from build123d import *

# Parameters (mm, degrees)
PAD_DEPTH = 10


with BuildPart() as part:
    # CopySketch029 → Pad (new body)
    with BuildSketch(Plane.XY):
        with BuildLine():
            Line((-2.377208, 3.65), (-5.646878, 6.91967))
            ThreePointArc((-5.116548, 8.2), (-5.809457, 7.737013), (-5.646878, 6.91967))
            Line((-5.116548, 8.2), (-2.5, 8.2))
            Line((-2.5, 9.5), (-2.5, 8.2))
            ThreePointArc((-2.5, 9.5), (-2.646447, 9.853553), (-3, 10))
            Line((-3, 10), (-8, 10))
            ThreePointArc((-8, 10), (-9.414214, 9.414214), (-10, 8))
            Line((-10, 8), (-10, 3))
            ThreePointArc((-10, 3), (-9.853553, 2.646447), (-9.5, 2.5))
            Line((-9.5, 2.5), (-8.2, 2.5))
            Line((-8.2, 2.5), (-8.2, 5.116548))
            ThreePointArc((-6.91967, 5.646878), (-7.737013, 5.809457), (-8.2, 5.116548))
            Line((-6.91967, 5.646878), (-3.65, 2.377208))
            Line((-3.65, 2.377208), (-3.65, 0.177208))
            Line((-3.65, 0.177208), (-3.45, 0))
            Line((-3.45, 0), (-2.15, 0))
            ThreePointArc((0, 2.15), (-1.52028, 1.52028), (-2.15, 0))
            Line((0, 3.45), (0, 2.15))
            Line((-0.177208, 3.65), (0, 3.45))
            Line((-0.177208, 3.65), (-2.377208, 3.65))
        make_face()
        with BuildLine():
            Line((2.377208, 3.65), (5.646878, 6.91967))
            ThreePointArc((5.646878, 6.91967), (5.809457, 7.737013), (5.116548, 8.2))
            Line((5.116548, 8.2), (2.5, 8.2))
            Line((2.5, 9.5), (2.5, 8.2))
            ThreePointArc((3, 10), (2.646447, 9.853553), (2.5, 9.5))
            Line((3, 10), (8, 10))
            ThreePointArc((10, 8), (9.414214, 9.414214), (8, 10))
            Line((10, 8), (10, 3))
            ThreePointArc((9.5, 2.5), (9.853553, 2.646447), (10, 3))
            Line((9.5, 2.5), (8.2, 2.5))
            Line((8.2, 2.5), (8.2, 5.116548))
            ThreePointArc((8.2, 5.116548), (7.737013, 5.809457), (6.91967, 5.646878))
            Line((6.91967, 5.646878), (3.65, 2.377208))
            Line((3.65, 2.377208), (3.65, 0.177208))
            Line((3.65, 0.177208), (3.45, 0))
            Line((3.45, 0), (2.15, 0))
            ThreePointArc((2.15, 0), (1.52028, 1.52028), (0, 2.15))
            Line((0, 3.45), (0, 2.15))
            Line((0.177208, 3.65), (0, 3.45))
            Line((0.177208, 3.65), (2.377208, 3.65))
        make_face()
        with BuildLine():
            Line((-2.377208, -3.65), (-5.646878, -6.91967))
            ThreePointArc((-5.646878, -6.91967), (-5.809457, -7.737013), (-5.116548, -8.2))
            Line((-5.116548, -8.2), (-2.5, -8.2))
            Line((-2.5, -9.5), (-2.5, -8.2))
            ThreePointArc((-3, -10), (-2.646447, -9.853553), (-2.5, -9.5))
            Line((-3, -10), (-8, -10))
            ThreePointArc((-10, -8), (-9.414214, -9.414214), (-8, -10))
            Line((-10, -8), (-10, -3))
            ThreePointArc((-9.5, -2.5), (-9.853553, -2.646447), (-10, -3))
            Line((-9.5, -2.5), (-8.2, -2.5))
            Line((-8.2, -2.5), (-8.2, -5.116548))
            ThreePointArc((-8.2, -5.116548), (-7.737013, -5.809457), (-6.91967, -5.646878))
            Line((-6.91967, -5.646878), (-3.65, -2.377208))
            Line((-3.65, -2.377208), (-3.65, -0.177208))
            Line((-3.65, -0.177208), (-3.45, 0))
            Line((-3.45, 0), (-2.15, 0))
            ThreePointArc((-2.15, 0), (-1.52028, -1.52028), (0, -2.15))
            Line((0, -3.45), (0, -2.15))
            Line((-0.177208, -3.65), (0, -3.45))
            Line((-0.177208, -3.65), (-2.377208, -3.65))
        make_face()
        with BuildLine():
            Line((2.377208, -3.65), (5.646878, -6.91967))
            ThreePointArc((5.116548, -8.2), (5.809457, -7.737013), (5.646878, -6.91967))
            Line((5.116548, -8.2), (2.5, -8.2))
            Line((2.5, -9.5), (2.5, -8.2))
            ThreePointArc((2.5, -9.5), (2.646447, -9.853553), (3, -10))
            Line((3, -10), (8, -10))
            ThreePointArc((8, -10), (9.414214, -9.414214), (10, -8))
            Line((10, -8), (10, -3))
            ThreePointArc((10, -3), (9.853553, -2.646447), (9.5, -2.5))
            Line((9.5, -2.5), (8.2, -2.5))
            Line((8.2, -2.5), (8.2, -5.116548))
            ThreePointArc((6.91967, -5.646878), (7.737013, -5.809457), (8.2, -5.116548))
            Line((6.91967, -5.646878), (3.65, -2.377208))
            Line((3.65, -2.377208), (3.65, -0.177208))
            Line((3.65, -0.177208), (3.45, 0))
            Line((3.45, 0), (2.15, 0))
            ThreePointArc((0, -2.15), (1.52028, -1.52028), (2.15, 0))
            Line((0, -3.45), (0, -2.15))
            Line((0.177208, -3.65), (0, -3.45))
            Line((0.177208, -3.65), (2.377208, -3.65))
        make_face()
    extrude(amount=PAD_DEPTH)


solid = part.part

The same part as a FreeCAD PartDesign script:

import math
import FreeCAD as App
import Part
import Sketcher

V = App.Vector

doc = App.newDocument("Part")
body = doc.addObject("PartDesign::Body", "Body")

# Sketch on XY plane
sketch1 = doc.addObject("Sketcher::SketchObject", "Sketch")
body.addObject(sketch1)
sketch1.AttachmentSupport = (doc.XY_Plane, [""])
sketch1.MapMode = "FlatFace"
sketch1.addGeometry(Part.LineSegment(V(-2.38, 3.65, 0), V(-5.65, 6.92, 0)), False)
sketch1.addGeometry(Part.ArcOfCircle(Part.Circle(V(-5.12, 7.45, 0), V(0, 0, 1), 0.75), math.radians(90), math.radians(225)), False)
sketch1.addGeometry(Part.LineSegment(V(-5.12, 8.2, 0), V(-2.5, 8.2, 0)), False)
sketch1.addGeometry(Part.LineSegment(V(-2.5, 8.2, 0), V(-2.5, 9.5, 0)), False)
sketch1.addGeometry(Part.ArcOfCircle(Part.Circle(V(-3, 9.5, 0), V(0, 0, 1), 0.5), math.radians(0), math.radians(90)), False)
sketch1.addGeometry(Part.LineSegment(V(-3, 10, 0), V(-8, 10, 0)), False)
sketch1.addGeometry(Part.ArcOfCircle(Part.Circle(V(-8, 8, 0), V(0, 0, 1), 2), math.radians(90), math.radians(180)), False)
sketch1.addGeometry(Part.LineSegment(V(-10, 8, 0), V(-10, 3, 0)), False)
sketch1.addGeometry(Part.ArcOfCircle(Part.Circle(V(-9.5, 3, 0), V(0, 0, 1), 0.5), math.radians(-180), math.radians(-90)), False)
sketch1.addGeometry(Part.LineSegment(V(-9.5, 2.5, 0), V(-8.2, 2.5, 0)), False)
sketch1.addGeometry(Part.LineSegment(V(-8.2, 2.5, 0), V(-8.2, 5.12, 0)), False)
sketch1.addGeometry(Part.ArcOfCircle(Part.Circle(V(-7.45, 5.12, 0), V(0, 0, 1), 0.75), math.radians(45), math.radians(180)), False)
sketch1.addGeometry(Part.LineSegment(V(-6.92, 5.65, 0), V(-3.65, 2.38, 0)), False)
sketch1.addGeometry(Part.LineSegment(V(-3.65, 2.38, 0), V(-3.65, 0.18, 0)), False)
sketch1.addGeometry(Part.LineSegment(V(-3.65, 0.18, 0), V(-3.45, 0, 0)), False)
sketch1.addGeometry(Part.LineSegment(V(-3.45, 0, 0), V(-3.65, -0.18, 0)), False)
sketch1.addGeometry(Part.LineSegment(V(-3.65, -0.18, 0), V(-3.65, -2.38, 0)), False)
sketch1.addGeometry(Part.LineSegment(V(-3.65, -2.38, 0), V(-6.92, -5.65, 0)), False)
sketch1.addGeometry(Part.ArcOfCircle(Part.Circle(V(-7.45, -5.12, 0), V(0, 0, 1), 0.75), math.radians(-180), math.radians(-45)), False)
sketch1.addGeometry(Part.LineSegment(V(-8.2, -5.12, 0), V(-8.2, -2.5, 0)), False)
sketch1.addGeometry(Part.LineSegment(V(-8.2, -2.5, 0), V(-9.5, -2.5, 0)), False)
sketch1.addGeometry(Part.ArcOfCircle(Part.Circle(V(-9.5, -3, 0), V(0, 0, 1), 0.5), math.radians(90), math.radians(180)), False)
sketch1.addGeometry(Part.LineSegment(V(-10, -3, 0), V(-10, -8, 0)), False)
sketch1.addGeometry(Part.ArcOfCircle(Part.Circle(V(-8, -8, 0), V(0, 0, 1), 2), math.radians(180), math.radians(270)), False)
sketch1.addGeometry(Part.LineSegment(V(-8, -10, 0), V(-3, -10, 0)), False)
sketch1.addGeometry(Part.ArcOfCircle(Part.Circle(V(-3, -9.5, 0), V(0, 0, 1), 0.5), math.radians(-90), math.radians(0)), False)
sketch1.addGeometry(Part.LineSegment(V(-2.5, -9.5, 0), V(-2.5, -8.2, 0)), False)
sketch1.addGeometry(Part.LineSegment(V(-2.5, -8.2, 0), V(-5.12, -8.2, 0)), False)
sketch1.addGeometry(Part.ArcOfCircle(Part.Circle(V(-5.12, -7.45, 0), V(0, 0, 1), 0.75), math.radians(135), math.radians(270)), False)
sketch1.addGeometry(Part.LineSegment(V(-5.65, -6.92, 0), V(-2.38, -3.65, 0)), False)
sketch1.addGeometry(Part.LineSegment(V(-2.38, -3.65, 0), V(-0.18, -3.65, 0)), False)
sketch1.addGeometry(Part.LineSegment(V(-0.18, -3.65, 0), V(0, -3.45, 0)), False)
sketch1.addGeometry(Part.LineSegment(V(0, -3.45, 0), V(0.18, -3.65, 0)), False)
sketch1.addGeometry(Part.LineSegment(V(0.18, -3.65, 0), V(2.38, -3.65, 0)), False)
sketch1.addGeometry(Part.LineSegment(V(2.38, -3.65, 0), V(5.65, -6.92, 0)), False)
sketch1.addGeometry(Part.ArcOfCircle(Part.Circle(V(5.12, -7.45, 0), V(0, 0, 1), 0.75), math.radians(-90), math.radians(45)), False)
sketch1.addGeometry(Part.LineSegment(V(5.12, -8.2, 0), V(2.5, -8.2, 0)), False)
sketch1.addGeometry(Part.LineSegment(V(2.5, -8.2, 0), V(2.5, -9.5, 0)), False)
sketch1.addGeometry(Part.ArcOfCircle(Part.Circle(V(3, -9.5, 0), V(0, 0, 1), 0.5), math.radians(-180), math.radians(-90)), False)
sketch1.addGeometry(Part.LineSegment(V(3, -10, 0), V(8, -10, 0)), False)
sketch1.addGeometry(Part.ArcOfCircle(Part.Circle(V(8, -8, 0), V(0, 0, 1), 2), math.radians(-90), math.radians(0)), False)
sketch1.addGeometry(Part.LineSegment(V(10, -8, 0), V(10, -3, 0)), False)
sketch1.addGeometry(Part.ArcOfCircle(Part.Circle(V(9.5, -3, 0), V(0, 0, 1), 0.5), math.radians(0), math.radians(90)), False)
sketch1.addGeometry(Part.LineSegment(V(9.5, -2.5, 0), V(8.2, -2.5, 0)), False)
sketch1.addGeometry(Part.LineSegment(V(8.2, -2.5, 0), V(8.2, -5.12, 0)), False)
sketch1.addGeometry(Part.ArcOfCircle(Part.Circle(V(7.45, -5.12, 0), V(0, 0, 1), 0.75), math.radians(-135), math.radians(0)), False)
sketch1.addGeometry(Part.LineSegment(V(6.92, -5.65, 0), V(3.65, -2.38, 0)), False)
sketch1.addGeometry(Part.LineSegment(V(3.65, -2.38, 0), V(3.65, -0.18, 0)), False)
sketch1.addGeometry(Part.LineSegment(V(3.65, -0.18, 0), V(3.45, 0, 0)), False)
sketch1.addGeometry(Part.LineSegment(V(3.45, 0, 0), V(3.65, 0.18, 0)), False)
sketch1.addGeometry(Part.LineSegment(V(3.65, 0.18, 0), V(3.65, 2.38, 0)), False)
sketch1.addGeometry(Part.LineSegment(V(3.65, 2.38, 0), V(6.92, 5.65, 0)), False)
sketch1.addGeometry(Part.ArcOfCircle(Part.Circle(V(7.45, 5.12, 0), V(0, 0, 1), 0.75), math.radians(0), math.radians(135)), False)
sketch1.addGeometry(Part.LineSegment(V(8.2, 5.12, 0), V(8.2, 2.5, 0)), False)
sketch1.addGeometry(Part.LineSegment(V(8.2, 2.5, 0), V(9.5, 2.5, 0)), False)
sketch1.addGeometry(Part.ArcOfCircle(Part.Circle(V(9.5, 3, 0), V(0, 0, 1), 0.5), math.radians(-90), math.radians(0)), False)
sketch1.addGeometry(Part.LineSegment(V(10, 3, 0), V(10, 8, 0)), False)
sketch1.addGeometry(Part.ArcOfCircle(Part.Circle(V(8, 8, 0), V(0, 0, 1), 2), math.radians(0), math.radians(90)), False)
sketch1.addGeometry(Part.LineSegment(V(8, 10, 0), V(3, 10, 0)), False)
sketch1.addGeometry(Part.ArcOfCircle(Part.Circle(V(3, 9.5, 0), V(0, 0, 1), 0.5), math.radians(90), math.radians(180)), False)
sketch1.addGeometry(Part.LineSegment(V(2.5, 9.5, 0), V(2.5, 8.2, 0)), False)
sketch1.addGeometry(Part.LineSegment(V(2.5, 8.2, 0), V(5.12, 8.2, 0)), False)
sketch1.addGeometry(Part.ArcOfCircle(Part.Circle(V(5.12, 7.45, 0), V(0, 0, 1), 0.75), math.radians(-45), math.radians(90)), False)
sketch1.addGeometry(Part.LineSegment(V(5.65, 6.92, 0), V(2.38, 3.65, 0)), False)
sketch1.addGeometry(Part.LineSegment(V(2.38, 3.65, 0), V(0.18, 3.65, 0)), False)
sketch1.addGeometry(Part.LineSegment(V(0.18, 3.65, 0), V(0, 3.45, 0)), False)
sketch1.addGeometry(Part.LineSegment(V(0, 3.45, 0), V(-0.18, 3.65, 0)), False)
sketch1.addGeometry(Part.LineSegment(V(-0.18, 3.65, 0), V(-2.38, 3.65, 0)), False)
sketch1.addGeometry(Part.ArcOfCircle(Part.Circle(V(0, 0, 0), V(0, 0, 1), 2.15), math.radians(180), math.radians(270)), False)
sketch1.addGeometry(Part.ArcOfCircle(Part.Circle(V(0, 0, 0), V(0, 0, 1), 2.15), math.radians(90), math.radians(180)), False)
sketch1.addGeometry(Part.ArcOfCircle(Part.Circle(V(0, 0, 0), V(0, 0, 1), 2.15), math.radians(0), math.radians(90)), False)
sketch1.addGeometry(Part.ArcOfCircle(Part.Circle(V(0, 0, 0), V(0, 0, 1), 2.15), math.radians(-90), math.radians(0)), False)
sketch1.addConstraint(Sketcher.Constraint("Tangent", 0, 2, 1, 2))
sketch1.addConstraint(Sketcher.Constraint("Tangent", 1, 1, 2, 1))
sketch1.addConstraint(Sketcher.Constraint("Coincident", 2, 2, 3, 1))
sketch1.addConstraint(Sketcher.Constraint("Coincident", 3, 2, 4, 1))
sketch1.addConstraint(Sketcher.Constraint("Coincident", 4, 2, 5, 1))
sketch1.addConstraint(Sketcher.Constraint("Tangent", 5, 2, 6, 1))
sketch1.addConstraint(Sketcher.Constraint("Tangent", 6, 2, 7, 1))
sketch1.addConstraint(Sketcher.Constraint("Coincident", 7, 2, 8, 1))
sketch1.addConstraint(Sketcher.Constraint("Coincident", 8, 2, 9, 1))
sketch1.addConstraint(Sketcher.Constraint("Coincident", 9, 2, 10, 1))
sketch1.addConstraint(Sketcher.Constraint("Tangent", 10, 2, 11, 2))
sketch1.addConstraint(Sketcher.Constraint("Tangent", 11, 1, 12, 1))
sketch1.addConstraint(Sketcher.Constraint("Coincident", 12, 2, 13, 1))
sketch1.addConstraint(Sketcher.Constraint("Coincident", 13, 2, 14, 1))
sketch1.addConstraint(Sketcher.Constraint("Coincident", 14, 2, 15, 1))
sketch1.addConstraint(Sketcher.Constraint("Coincident", 15, 2, 16, 1))
sketch1.addConstraint(Sketcher.Constraint("Coincident", 16, 2, 17, 1))
sketch1.addConstraint(Sketcher.Constraint("Tangent", 17, 2, 18, 2))
sketch1.addConstraint(Sketcher.Constraint("Tangent", 18, 1, 19, 1))
sketch1.addConstraint(Sketcher.Constraint("Coincident", 19, 2, 20, 1))
sketch1.addConstraint(Sketcher.Constraint("Coincident", 20, 2, 21, 1))
sketch1.addConstraint(Sketcher.Constraint("Coincident", 21, 2, 22, 1))
sketch1.addConstraint(Sketcher.Constraint("Tangent", 22, 2, 23, 1))
sketch1.addConstraint(Sketcher.Constraint("Tangent", 23, 2, 24, 1))
sketch1.addConstraint(Sketcher.Constraint("Coincident", 24, 2, 25, 1))
sketch1.addConstraint(Sketcher.Constraint("Coincident", 25, 2, 26, 1))
sketch1.addConstraint(Sketcher.Constraint("Coincident", 26, 2, 27, 1))
sketch1.addConstraint(Sketcher.Constraint("Tangent", 27, 2, 28, 2))
sketch1.addConstraint(Sketcher.Constraint("Tangent", 28, 1, 29, 1))
sketch1.addConstraint(Sketcher.Constraint("Coincident", 29, 2, 30, 1))
sketch1.addConstraint(Sketcher.Constraint("Coincident", 30, 2, 31, 1))
sketch1.addConstraint(Sketcher.Constraint("Coincident", 31, 2, 32, 1))
sketch1.addConstraint(Sketcher.Constraint("Coincident", 32, 2, 33, 1))
sketch1.addConstraint(Sketcher.Constraint("Coincident", 33, 2, 34, 1))
sketch1.addConstraint(Sketcher.Constraint("Tangent", 34, 2, 35, 2))
sketch1.addConstraint(Sketcher.Constraint("Tangent", 35, 1, 36, 1))
sketch1.addConstraint(Sketcher.Constraint("Coincident", 36, 2, 37, 1))
sketch1.addConstraint(Sketcher.Constraint("Coincident", 37, 2, 38, 1))
sketch1.addConstraint(Sketcher.Constraint("Coincident", 38, 2, 39, 1))
sketch1.addConstraint(Sketcher.Constraint("Tangent", 39, 2, 40, 1))
sketch1.addConstraint(Sketcher.Constraint("Tangent", 40, 2, 41, 1))
sketch1.addConstraint(Sketcher.Constraint("Coincident", 41, 2, 42, 1))
sketch1.addConstraint(Sketcher.Constraint("Coincident", 42, 2, 43, 1))
sketch1.addConstraint(Sketcher.Constraint("Coincident", 43, 2, 44, 1))
sketch1.addConstraint(Sketcher.Constraint("Tangent", 44, 2, 45, 2))
sketch1.addConstraint(Sketcher.Constraint("Tangent", 45, 1, 46, 1))
sketch1.addConstraint(Sketcher.Constraint("Coincident", 46, 2, 47, 1))
sketch1.addConstraint(Sketcher.Constraint("Coincident", 47, 2, 48, 1))
sketch1.addConstraint(Sketcher.Constraint("Coincident", 48, 2, 49, 1))
sketch1.addConstraint(Sketcher.Constraint("Coincident", 49, 2, 50, 1))
sketch1.addConstraint(Sketcher.Constraint("Coincident", 50, 2, 51, 1))
sketch1.addConstraint(Sketcher.Constraint("Tangent", 51, 2, 52, 2))
sketch1.addConstraint(Sketcher.Constraint("Tangent", 52, 1, 53, 1))
sketch1.addConstraint(Sketcher.Constraint("Coincident", 53, 2, 54, 1))
sketch1.addConstraint(Sketcher.Constraint("Coincident", 54, 2, 55, 1))
sketch1.addConstraint(Sketcher.Constraint("Coincident", 55, 2, 56, 1))
sketch1.addConstraint(Sketcher.Constraint("Tangent", 56, 2, 57, 1))
sketch1.addConstraint(Sketcher.Constraint("Tangent", 57, 2, 58, 1))
sketch1.addConstraint(Sketcher.Constraint("Coincident", 58, 2, 59, 1))
sketch1.addConstraint(Sketcher.Constraint("Coincident", 59, 2, 60, 1))
sketch1.addConstraint(Sketcher.Constraint("Coincident", 60, 2, 61, 1))
sketch1.addConstraint(Sketcher.Constraint("Tangent", 61, 2, 62, 2))
sketch1.addConstraint(Sketcher.Constraint("Tangent", 62, 1, 63, 1))
sketch1.addConstraint(Sketcher.Constraint("Coincident", 63, 2, 64, 1))
sketch1.addConstraint(Sketcher.Constraint("Coincident", 64, 2, 65, 1))
sketch1.addConstraint(Sketcher.Constraint("Coincident", 65, 2, 66, 1))
sketch1.addConstraint(Sketcher.Constraint("Coincident", 66, 2, 67, 1))
sketch1.addConstraint(Sketcher.Constraint("Coincident", 67, 2, 0, 1))
sketch1.addConstraint(Sketcher.Constraint("Tangent", 68, 1, 69, 2))
sketch1.addConstraint(Sketcher.Constraint("Tangent", 69, 1, 70, 2))
sketch1.addConstraint(Sketcher.Constraint("Tangent", 70, 1, 71, 2))
sketch1.addConstraint(Sketcher.Constraint("Tangent", 71, 1, 68, 2))
sketch1.addConstraint(Sketcher.Constraint("Horizontal", 2))
sketch1.addConstraint(Sketcher.Constraint("Vertical", 3))
sketch1.addConstraint(Sketcher.Constraint("Horizontal", 5))
sketch1.addConstraint(Sketcher.Constraint("Vertical", 7))
sketch1.addConstraint(Sketcher.Constraint("Horizontal", 9))
sketch1.addConstraint(Sketcher.Constraint("Vertical", 10))
sketch1.addConstraint(Sketcher.Constraint("Vertical", 13))
sketch1.addConstraint(Sketcher.Constraint("Vertical", 16))
sketch1.addConstraint(Sketcher.Constraint("Vertical", 19))
sketch1.addConstraint(Sketcher.Constraint("Horizontal", 20))
sketch1.addConstraint(Sketcher.Constraint("Vertical", 22))
sketch1.addConstraint(Sketcher.Constraint("Horizontal", 24))
sketch1.addConstraint(Sketcher.Constraint("Vertical", 26))
sketch1.addConstraint(Sketcher.Constraint("Horizontal", 27))
sketch1.addConstraint(Sketcher.Constraint("Horizontal", 30))
sketch1.addConstraint(Sketcher.Constraint("Horizontal", 33))
sketch1.addConstraint(Sketcher.Constraint("Horizontal", 36))
sketch1.addConstraint(Sketcher.Constraint("Vertical", 37))
sketch1.addConstraint(Sketcher.Constraint("Horizontal", 39))
sketch1.addConstraint(Sketcher.Constraint("Vertical", 41))
sketch1.addConstraint(Sketcher.Constraint("Horizontal", 43))
sketch1.addConstraint(Sketcher.Constraint("Vertical", 44))
sketch1.addConstraint(Sketcher.Constraint("Vertical", 47))
sketch1.addConstraint(Sketcher.Constraint("Vertical", 50))
sketch1.addConstraint(Sketcher.Constraint("Vertical", 53))
sketch1.addConstraint(Sketcher.Constraint("Horizontal", 54))
sketch1.addConstraint(Sketcher.Constraint("Vertical", 56))
sketch1.addConstraint(Sketcher.Constraint("Horizontal", 58))
sketch1.addConstraint(Sketcher.Constraint("Vertical", 60))
sketch1.addConstraint(Sketcher.Constraint("Horizontal", 61))
sketch1.addConstraint(Sketcher.Constraint("Horizontal", 64))
sketch1.addConstraint(Sketcher.Constraint("Horizontal", 67))
sketch1.addConstraint(Sketcher.Constraint("Coincident", 68, 3, -1, 1))
sketch1.addConstraint(Sketcher.Constraint("Equal", 4, 8))
sketch1.addConstraint(Sketcher.Constraint("Equal", 1, 11))
sketch1.addConstraint(Sketcher.Constraint("Equal", 11, 18))
sketch1.addConstraint(Sketcher.Constraint("Equal", 8, 21))
sketch1.addConstraint(Sketcher.Constraint("Equal", 6, 23))
sketch1.addConstraint(Sketcher.Constraint("Equal", 21, 25))
sketch1.addConstraint(Sketcher.Constraint("Equal", 18, 28))
sketch1.addConstraint(Sketcher.Constraint("Equal", 28, 35))
sketch1.addConstraint(Sketcher.Constraint("Equal", 25, 38))
sketch1.addConstraint(Sketcher.Constraint("Equal", 23, 40))
sketch1.addConstraint(Sketcher.Constraint("Equal", 38, 42))
sketch1.addConstraint(Sketcher.Constraint("Equal", 35, 45))
sketch1.addConstraint(Sketcher.Constraint("Equal", 45, 52))
sketch1.addConstraint(Sketcher.Constraint("Equal", 42, 55))
sketch1.addConstraint(Sketcher.Constraint("Equal", 40, 57))
sketch1.addConstraint(Sketcher.Constraint("Equal", 55, 59))
sketch1.addConstraint(Sketcher.Constraint("Equal", 52, 62))
sketch1.addConstraint(Sketcher.Constraint("Equal", 68, 69))
sketch1.addConstraint(Sketcher.Constraint("Symmetric", 1, 3, 35, 3, -1, 1))
sketch1.addConstraint(Sketcher.Constraint("Symmetric", 4, 3, 38, 3, -1, 1))
sketch1.addConstraint(Sketcher.Constraint("Symmetric", 8, 3, 42, 3, -1, 1))
sketch1.addConstraint(Sketcher.Constraint("Symmetric", 11, 3, 45, 3, -1, 1))
sketch1.addConstraint(Sketcher.Constraint("Symmetric", 18, 3, 52, 3, -1, 1))
sketch1.addConstraint(Sketcher.Constraint("Symmetric", 21, 3, 55, 3, -1, 1))
sketch1.addConstraint(Sketcher.Constraint("Symmetric", 25, 3, 59, 3, -1, 1))
sketch1.addConstraint(Sketcher.Constraint("Symmetric", 28, 3, 62, 3, -1, 1))
sketch1.addConstraint(Sketcher.Constraint("Symmetric", 12, 2, 46, 2, -1, 1))
sketch1.addConstraint(Sketcher.Constraint("Symmetric", 14, 2, 48, 2, -1, 1))
sketch1.addConstraint(Sketcher.Constraint("Symmetric", 15, 2, 49, 2, -1, 1))
sketch1.addConstraint(Sketcher.Constraint("Symmetric", 29, 2, 63, 2, -1, 1))
sketch1.addConstraint(Sketcher.Constraint("Symmetric", 31, 2, 65, 2, -1, 1))
sketch1.addConstraint(Sketcher.Constraint("Symmetric", 32, 2, 66, 2, -1, 1))
sketch1.addConstraint(Sketcher.Constraint("Symmetric", 28, 3, 35, 3, -2))
sketch1.addConstraint(Sketcher.Constraint("Symmetric", 25, 3, 38, 3, -2))
sketch1.addConstraint(Sketcher.Constraint("Symmetric", 21, 3, 42, 3, -2))
sketch1.addConstraint(Sketcher.Constraint("Symmetric", 18, 3, 45, 3, -2))
sketch1.addConstraint(Sketcher.Constraint("Symmetric", 30, 2, 32, 2, -2))
sketch1.addConstraint(Sketcher.Constraint("Symmetric", 16, 2, 46, 2, -2))
sketch1.addConstraint(Sketcher.Constraint("PointOnObject", 14, 2, -1))
sketch1.addConstraint(Sketcher.Constraint("PointOnObject", 31, 2, -2))
sketch1.addConstraint(Sketcher.Constraint("PointOnObject", 68, 1, -1))
sketch1.addConstraint(Sketcher.Constraint("PointOnObject", 69, 1, -2))
sketch1.addConstraint(Sketcher.Constraint("PointOnObject", 70, 1, -1))
sketch1.addConstraint(Sketcher.Constraint("PointOnObject", 71, 1, -2))
sketch1.addConstraint(Sketcher.Constraint("Parallel", 0, 12))
sketch1.addConstraint(Sketcher.Constraint("Perpendicular", 12, 17))
sketch1.addConstraint(Sketcher.Constraint("Parallel", 17, 29))
sketch1.addConstraint(Sketcher.Constraint("Perpendicular", 14, 31))
sketch1.addConstraint(Sketcher.Constraint("Perpendicular", 15, 32))
sketch1.addConstraint(Sketcher.Constraint("Perpendicular", 29, 34))
sketch1.addConstraint(Sketcher.Constraint("Perpendicular", 31, 48))
sketch1.addConstraint(Sketcher.Constraint("Perpendicular", 46, 51))
sketch1.addConstraint(Sketcher.Constraint("Perpendicular", 48, 65))
sketch1.addConstraint(Sketcher.Constraint("Horizontal", 59, 3, 3, 2))
sketch1.addConstraint(Sketcher.Constraint("Horizontal", 55, 3, 7, 2))
sketch1.addConstraint(Sketcher.Constraint("Horizontal", 42, 3, 21, 2))
sketch1.addConstraint(Sketcher.Constraint("Horizontal", 38, 3, 25, 2))
sketch1.addConstraint(Sketcher.Constraint("Horizontal", 25, 2, 37, 2))
sketch1.addConstraint(Sketcher.Constraint("Horizontal", 21, 2, 41, 2))
sketch1.addConstraint(Sketcher.Constraint("Horizontal", 7, 2, 55, 2))
sketch1.addConstraint(Sketcher.Constraint("Horizontal", 3, 2, 59, 2))
sketch1.addConstraint(Sketcher.Constraint("Vertical", 25, 3, 4, 2))
sketch1.addConstraint(Sketcher.Constraint("Vertical", 21, 3, 8, 2))
sketch1.addConstraint(Sketcher.Constraint("Vertical", 8, 2, 20, 2))
sketch1.addConstraint(Sketcher.Constraint("Vertical", 4, 2, 24, 2))
sketch1.addConstraint(Sketcher.Constraint("Vertical", 59, 3, 38, 2))
sketch1.addConstraint(Sketcher.Constraint("Vertical", 55, 3, 42, 2))
sketch1.addConstraint(Sketcher.Constraint("Vertical", 42, 2, 54, 2))
sketch1.addConstraint(Sketcher.Constraint("Vertical", 38, 2, 58, 2))
sketch1.addConstraint(Sketcher.Constraint("Equal", 54, 3))
sketch1.addConstraint(Sketcher.Constraint("Equal", 58, 7))
sketch1.addConstraint(Sketcher.Constraint("Equal", 61, 10))
sketch1.addConstraint(Sketcher.Constraint("Equal", 67, 13))
sketch1.addConstraint(Sketcher.Constraint("Equal", 0, 12))
sketch1.addConstraint(Sketcher.Constraint("Equal", 15, 31))
sketch1.addConstraint(Sketcher.Constraint("Radius", 6, 1.999999))
sketch1.addConstraint(Sketcher.Constraint("Radius", 4, 0.500001))
sketch1.addConstraint(Sketcher.Constraint("DistanceX", 5, 2, 5, 1, 5.0))
sketch1.addConstraint(Sketcher.Constraint("Radius", 1, 0.75))
sketch1.addConstraint(Sketcher.Constraint("Radius", 68, 2.149999))
sketch1.addConstraint(Sketcher.Constraint("DistanceX", 9, 1, 9, 2, 1.3))
sketch1.addConstraint(Sketcher.Constraint("DistanceX", 30, 1, 30, 2, 2.2))
sketch1.addConstraint(Sketcher.Constraint("DistanceX", 4, 3, -1, 1, 3.000001))
sketch1.addConstraint(Sketcher.Constraint("DistanceX", 12, 2, -1, 1, 3.65))
sketch1.addConstraint(Sketcher.Constraint("DistanceX", 14, 2, -1, 1, 3.45))
sketch1.addConstraint(Sketcher.Constraint("DistanceX", 2, 1, 2, 2, 2.616548))
pad1 = doc.addObject("PartDesign::Pad", "Pad")
body.addObject(pad1)
pad1.Profile = sketch1
pad1.Length = 10

doc.recompute()
